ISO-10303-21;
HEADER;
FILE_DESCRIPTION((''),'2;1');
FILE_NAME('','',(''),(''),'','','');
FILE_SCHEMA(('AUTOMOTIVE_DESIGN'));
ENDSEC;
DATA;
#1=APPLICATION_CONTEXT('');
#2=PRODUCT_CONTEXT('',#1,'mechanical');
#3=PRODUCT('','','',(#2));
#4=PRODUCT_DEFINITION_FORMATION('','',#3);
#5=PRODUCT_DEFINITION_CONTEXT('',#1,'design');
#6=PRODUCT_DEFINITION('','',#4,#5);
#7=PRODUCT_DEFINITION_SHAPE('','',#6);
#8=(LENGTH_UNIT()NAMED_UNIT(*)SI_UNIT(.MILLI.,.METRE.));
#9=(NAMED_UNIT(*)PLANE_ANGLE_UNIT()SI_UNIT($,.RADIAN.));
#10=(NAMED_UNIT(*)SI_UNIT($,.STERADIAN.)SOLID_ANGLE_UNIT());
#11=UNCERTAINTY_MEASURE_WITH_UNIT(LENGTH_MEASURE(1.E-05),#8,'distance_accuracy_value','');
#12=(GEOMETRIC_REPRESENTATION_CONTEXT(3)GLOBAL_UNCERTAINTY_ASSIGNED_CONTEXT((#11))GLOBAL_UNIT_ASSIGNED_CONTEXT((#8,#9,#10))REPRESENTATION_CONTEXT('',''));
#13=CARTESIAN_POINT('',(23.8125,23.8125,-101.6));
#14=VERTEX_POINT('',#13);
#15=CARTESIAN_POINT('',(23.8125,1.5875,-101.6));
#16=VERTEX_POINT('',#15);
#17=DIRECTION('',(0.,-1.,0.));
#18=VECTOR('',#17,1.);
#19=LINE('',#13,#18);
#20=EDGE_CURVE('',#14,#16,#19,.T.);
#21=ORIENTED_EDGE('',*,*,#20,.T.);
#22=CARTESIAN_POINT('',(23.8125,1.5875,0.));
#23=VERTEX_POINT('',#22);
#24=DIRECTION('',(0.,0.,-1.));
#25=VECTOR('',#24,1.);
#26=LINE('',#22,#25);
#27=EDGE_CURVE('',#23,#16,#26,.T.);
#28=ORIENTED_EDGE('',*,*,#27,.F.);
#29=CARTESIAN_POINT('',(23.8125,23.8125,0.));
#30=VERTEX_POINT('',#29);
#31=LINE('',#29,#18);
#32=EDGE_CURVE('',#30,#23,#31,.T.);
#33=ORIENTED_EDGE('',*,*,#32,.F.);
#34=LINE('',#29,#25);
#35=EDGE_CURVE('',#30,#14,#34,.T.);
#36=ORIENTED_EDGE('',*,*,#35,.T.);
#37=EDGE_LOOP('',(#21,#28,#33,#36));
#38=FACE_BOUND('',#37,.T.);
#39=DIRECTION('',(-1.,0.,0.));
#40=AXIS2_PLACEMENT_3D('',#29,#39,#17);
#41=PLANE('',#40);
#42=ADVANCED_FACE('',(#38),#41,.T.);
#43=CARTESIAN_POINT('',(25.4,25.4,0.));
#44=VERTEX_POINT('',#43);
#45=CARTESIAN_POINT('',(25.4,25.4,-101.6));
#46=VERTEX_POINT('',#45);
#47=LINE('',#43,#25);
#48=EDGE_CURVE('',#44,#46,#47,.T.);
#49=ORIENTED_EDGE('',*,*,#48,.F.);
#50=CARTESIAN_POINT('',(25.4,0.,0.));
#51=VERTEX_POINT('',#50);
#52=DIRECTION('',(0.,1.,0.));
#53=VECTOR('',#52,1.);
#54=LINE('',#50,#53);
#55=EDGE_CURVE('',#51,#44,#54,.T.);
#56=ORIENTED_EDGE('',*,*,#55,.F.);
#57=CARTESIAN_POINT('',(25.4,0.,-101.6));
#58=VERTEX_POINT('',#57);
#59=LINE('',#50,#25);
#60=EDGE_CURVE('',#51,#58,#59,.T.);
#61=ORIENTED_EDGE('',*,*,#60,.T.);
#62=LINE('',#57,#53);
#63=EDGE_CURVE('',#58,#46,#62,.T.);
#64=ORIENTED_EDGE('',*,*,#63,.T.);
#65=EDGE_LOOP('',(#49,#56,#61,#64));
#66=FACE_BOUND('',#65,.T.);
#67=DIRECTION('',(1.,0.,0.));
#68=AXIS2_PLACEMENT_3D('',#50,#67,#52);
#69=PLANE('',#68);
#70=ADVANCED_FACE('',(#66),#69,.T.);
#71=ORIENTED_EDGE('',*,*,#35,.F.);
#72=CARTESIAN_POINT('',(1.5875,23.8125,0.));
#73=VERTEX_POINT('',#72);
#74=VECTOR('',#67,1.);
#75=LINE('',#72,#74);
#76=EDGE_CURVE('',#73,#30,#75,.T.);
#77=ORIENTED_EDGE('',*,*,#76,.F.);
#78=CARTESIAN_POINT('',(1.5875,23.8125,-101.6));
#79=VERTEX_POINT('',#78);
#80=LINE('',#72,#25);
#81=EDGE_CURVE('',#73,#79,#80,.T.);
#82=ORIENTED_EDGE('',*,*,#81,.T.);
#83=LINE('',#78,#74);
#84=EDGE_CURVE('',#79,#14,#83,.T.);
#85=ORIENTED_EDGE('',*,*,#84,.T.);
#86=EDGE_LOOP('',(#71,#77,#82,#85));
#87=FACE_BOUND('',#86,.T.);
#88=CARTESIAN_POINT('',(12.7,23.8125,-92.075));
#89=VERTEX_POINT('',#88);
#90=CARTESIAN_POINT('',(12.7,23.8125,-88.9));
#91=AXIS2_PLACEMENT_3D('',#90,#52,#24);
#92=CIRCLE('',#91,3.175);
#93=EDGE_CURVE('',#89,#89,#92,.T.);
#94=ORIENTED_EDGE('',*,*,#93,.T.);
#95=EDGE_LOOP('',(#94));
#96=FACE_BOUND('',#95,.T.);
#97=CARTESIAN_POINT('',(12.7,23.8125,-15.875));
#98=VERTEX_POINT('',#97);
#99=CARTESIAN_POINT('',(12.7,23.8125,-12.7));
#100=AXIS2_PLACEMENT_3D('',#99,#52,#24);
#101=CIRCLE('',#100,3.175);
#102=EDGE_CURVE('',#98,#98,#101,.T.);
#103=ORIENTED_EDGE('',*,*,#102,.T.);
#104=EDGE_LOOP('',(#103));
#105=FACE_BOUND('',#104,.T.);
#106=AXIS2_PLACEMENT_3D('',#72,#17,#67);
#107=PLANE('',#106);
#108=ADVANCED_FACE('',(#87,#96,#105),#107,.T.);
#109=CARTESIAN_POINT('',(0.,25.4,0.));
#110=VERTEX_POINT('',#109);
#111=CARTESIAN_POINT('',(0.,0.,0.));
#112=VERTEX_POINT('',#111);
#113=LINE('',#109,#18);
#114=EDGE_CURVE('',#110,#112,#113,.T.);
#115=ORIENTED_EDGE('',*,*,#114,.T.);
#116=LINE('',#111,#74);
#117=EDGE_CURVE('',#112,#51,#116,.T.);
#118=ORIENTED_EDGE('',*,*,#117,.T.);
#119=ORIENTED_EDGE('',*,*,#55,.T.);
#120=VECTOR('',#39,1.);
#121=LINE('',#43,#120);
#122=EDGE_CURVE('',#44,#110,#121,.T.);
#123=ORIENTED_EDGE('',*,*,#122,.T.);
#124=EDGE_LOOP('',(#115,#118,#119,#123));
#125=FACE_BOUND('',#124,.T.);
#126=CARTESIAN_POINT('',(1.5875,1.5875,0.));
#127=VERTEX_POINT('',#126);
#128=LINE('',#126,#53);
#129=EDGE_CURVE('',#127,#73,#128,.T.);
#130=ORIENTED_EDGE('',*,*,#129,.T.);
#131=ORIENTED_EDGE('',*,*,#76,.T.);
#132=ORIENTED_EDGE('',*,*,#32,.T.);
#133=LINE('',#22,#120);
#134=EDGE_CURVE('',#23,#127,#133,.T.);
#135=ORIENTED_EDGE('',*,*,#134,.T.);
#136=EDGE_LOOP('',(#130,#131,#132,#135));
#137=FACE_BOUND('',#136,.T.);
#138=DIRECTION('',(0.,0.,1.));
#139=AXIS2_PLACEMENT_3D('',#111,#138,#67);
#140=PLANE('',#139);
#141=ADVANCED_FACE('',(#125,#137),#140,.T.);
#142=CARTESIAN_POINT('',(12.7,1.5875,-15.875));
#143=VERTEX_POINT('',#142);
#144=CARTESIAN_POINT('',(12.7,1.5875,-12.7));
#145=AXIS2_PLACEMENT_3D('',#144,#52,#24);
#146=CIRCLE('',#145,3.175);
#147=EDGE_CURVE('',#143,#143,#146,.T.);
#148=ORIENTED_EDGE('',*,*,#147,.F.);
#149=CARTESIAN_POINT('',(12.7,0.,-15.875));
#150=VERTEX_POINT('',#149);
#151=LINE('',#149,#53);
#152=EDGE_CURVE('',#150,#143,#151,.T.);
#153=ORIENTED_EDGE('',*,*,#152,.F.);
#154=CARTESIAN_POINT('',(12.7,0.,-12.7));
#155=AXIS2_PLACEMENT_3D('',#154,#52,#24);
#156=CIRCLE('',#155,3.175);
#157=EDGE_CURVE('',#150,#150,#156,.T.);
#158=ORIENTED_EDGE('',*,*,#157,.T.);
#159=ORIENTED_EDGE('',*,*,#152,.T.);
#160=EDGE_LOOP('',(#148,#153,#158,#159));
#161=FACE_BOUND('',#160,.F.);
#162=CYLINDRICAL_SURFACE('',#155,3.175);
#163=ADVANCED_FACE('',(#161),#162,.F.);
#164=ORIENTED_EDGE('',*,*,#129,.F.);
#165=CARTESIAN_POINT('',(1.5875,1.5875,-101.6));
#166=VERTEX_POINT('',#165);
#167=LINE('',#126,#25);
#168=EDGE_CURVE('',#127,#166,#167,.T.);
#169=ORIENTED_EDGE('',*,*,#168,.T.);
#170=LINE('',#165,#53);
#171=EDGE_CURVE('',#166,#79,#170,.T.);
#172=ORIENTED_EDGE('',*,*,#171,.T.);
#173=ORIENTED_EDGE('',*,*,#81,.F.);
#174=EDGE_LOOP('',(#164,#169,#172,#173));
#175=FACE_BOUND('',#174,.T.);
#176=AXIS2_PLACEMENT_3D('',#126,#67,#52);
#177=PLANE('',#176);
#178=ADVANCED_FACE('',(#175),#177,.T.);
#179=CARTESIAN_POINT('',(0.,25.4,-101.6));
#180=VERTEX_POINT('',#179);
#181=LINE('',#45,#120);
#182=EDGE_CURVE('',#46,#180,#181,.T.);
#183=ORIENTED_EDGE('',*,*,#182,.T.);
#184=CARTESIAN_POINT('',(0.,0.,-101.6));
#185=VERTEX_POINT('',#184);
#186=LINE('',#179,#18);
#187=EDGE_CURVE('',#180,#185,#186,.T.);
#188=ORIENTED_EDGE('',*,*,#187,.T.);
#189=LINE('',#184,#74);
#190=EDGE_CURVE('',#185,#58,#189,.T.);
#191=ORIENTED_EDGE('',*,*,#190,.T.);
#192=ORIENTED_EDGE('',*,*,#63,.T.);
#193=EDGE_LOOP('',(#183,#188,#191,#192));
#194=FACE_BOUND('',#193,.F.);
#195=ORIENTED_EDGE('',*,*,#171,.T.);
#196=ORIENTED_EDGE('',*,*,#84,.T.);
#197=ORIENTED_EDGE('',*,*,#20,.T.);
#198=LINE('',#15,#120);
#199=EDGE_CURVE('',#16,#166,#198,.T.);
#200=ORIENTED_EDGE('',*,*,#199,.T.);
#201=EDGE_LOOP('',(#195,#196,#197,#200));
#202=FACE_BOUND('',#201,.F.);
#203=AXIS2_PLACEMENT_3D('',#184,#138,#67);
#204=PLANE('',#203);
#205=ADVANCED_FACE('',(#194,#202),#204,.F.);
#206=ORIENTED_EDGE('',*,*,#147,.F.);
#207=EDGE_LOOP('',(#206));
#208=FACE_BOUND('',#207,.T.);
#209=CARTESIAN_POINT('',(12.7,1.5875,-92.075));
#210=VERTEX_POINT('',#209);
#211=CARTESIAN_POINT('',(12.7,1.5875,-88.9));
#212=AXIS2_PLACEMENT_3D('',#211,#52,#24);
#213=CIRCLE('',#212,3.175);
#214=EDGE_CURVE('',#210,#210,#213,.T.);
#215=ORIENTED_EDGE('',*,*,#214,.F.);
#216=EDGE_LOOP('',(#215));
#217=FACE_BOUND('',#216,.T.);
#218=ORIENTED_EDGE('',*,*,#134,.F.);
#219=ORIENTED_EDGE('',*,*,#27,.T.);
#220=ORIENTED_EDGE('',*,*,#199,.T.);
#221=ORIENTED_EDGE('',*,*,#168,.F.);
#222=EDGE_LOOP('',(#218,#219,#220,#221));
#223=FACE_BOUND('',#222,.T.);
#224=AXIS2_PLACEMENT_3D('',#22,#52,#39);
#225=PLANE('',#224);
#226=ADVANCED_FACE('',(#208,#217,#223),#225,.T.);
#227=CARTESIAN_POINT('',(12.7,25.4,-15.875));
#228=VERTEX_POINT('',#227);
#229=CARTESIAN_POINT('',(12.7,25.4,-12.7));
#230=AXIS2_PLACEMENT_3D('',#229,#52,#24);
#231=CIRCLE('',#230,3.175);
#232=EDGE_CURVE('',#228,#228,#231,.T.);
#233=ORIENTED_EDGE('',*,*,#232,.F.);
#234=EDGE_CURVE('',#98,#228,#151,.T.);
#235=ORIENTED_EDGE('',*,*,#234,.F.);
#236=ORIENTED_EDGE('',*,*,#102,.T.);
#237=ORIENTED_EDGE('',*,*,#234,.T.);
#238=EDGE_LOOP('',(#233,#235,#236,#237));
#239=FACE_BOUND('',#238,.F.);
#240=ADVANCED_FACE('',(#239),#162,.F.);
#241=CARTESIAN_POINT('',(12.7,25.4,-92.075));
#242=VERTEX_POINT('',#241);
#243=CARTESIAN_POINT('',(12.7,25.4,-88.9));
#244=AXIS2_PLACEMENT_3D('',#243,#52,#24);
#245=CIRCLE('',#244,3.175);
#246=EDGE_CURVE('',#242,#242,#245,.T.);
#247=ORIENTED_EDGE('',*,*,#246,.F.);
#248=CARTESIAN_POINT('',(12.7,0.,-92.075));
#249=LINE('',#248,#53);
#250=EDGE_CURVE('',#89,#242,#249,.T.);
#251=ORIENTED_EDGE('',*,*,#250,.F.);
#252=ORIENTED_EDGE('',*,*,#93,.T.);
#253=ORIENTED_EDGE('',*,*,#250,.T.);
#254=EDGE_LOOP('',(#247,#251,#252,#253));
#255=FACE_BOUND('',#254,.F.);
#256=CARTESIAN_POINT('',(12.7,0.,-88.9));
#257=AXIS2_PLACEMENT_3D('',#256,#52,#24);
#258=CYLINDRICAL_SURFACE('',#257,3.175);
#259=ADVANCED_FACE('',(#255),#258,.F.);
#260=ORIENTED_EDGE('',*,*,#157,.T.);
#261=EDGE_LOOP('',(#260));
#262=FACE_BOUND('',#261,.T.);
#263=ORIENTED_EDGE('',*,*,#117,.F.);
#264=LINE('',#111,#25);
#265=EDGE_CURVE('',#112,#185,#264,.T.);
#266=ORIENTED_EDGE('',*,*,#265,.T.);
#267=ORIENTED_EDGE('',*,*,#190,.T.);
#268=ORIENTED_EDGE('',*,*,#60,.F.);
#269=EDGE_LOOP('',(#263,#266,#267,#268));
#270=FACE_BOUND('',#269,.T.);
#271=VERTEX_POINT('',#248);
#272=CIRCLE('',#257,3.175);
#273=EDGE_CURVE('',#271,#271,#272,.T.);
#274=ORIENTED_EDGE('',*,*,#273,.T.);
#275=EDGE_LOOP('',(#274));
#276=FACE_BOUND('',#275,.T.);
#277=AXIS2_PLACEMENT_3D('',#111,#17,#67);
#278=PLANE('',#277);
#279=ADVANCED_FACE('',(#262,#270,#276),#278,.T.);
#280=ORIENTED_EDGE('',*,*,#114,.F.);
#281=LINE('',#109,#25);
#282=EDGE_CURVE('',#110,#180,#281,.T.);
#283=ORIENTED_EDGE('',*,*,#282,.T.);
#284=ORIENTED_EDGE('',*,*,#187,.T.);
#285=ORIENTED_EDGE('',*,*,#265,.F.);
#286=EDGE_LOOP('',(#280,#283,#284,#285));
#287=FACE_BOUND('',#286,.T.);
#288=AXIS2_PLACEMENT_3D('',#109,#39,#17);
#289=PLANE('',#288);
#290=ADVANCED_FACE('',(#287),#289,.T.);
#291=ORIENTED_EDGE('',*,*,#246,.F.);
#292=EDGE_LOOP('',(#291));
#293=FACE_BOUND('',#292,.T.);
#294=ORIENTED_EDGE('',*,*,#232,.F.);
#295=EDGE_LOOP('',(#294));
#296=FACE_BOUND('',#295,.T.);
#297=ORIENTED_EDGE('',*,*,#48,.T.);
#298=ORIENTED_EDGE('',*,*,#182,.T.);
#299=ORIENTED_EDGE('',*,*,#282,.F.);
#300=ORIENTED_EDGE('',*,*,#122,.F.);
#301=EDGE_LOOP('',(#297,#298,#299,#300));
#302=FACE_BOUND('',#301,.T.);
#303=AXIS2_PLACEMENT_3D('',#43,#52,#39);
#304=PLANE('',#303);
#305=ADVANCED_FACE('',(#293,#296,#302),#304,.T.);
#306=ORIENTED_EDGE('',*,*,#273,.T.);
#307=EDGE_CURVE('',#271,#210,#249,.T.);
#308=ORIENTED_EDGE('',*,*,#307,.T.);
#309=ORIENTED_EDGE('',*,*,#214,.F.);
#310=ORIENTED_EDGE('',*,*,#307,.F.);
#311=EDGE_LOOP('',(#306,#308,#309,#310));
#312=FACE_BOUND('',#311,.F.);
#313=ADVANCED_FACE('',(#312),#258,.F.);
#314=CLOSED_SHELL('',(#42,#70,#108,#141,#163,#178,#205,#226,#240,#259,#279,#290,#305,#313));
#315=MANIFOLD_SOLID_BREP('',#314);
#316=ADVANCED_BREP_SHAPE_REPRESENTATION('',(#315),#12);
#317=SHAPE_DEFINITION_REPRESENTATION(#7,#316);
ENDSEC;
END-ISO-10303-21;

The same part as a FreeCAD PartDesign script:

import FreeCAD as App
import Part
import Sketcher
Q = App.Units.Quantity

doc = App.newDocument("Part")
params = doc.addObject("Spreadsheet::Sheet", "Params")
for row, (alias, value) in enumerate([
    ("sketch1_width", "1 in"),
    ("pad1_length", "4 in"),
    ("sketch2_diameter", "0.25 in"),
    ("hole_diameter", "0.25 in"),
    ("hole_depth", "1 in"),
], start=1):
    params.set(f"A{row}", alias)
    params.set(f"B{row}", "=" + value)
    params.setAlias(f"B{row}", alias)

body = doc.addObject("PartDesign::Body", "Body")

sketch1 = body.newObject("Sketcher::SketchObject", "Sketch")
sketch1.AttachmentSupport = (doc.getObject("XY_Plane"), [""])
sketch1.MapMode = "FlatFace"
sketch1.addGeometry([
    Part.LineSegment(App.Vector(0, 25, 0), App.Vector(0, 0, 0)),
    Part.LineSegment(App.Vector(0, 0, 0), App.Vector(25, 0, 0)),
    Part.LineSegment(App.Vector(25, 0, 0), App.Vector(25, 25, 0)),
    Part.LineSegment(App.Vector(25, 25, 0), App.Vector(0, 25, 0)),
    Part.LineSegment(App.Vector(2, 2, 0), App.Vector(2, 24, 0)),
    Part.LineSegment(App.Vector(2, 24, 0), App.Vector(24, 24, 0)),
    Part.LineSegment(App.Vector(24, 24, 0), App.Vector(24, 2, 0)),
    Part.LineSegment(App.Vector(24, 2, 0), App.Vector(2, 2, 0)),
], False)
sketch1.addConstraint([
    Sketcher.Constraint("Coincident", 0, 2, 1, 1),
    Sketcher.Constraint("Coincident", 1, 2, 2, 1),
    Sketcher.Constraint("Coincident", 2, 2, 3, 1),
    Sketcher.Constraint("Coincident", 3, 2, 0, 1),
    Sketcher.Constraint("Coincident", 4, 2, 5, 1),
    Sketcher.Constraint("Coincident", 5, 2, 6, 1),
    Sketcher.Constraint("Coincident", 6, 2, 7, 1),
    Sketcher.Constraint("Coincident", 7, 2, 4, 1),
    Sketcher.Constraint("Vertical", 0),
    Sketcher.Constraint("Horizontal", 1),
    Sketcher.Constraint("Vertical", 2),
    Sketcher.Constraint("Horizontal", 3),
    Sketcher.Constraint("Vertical", 4),
    Sketcher.Constraint("Horizontal", 5),
    Sketcher.Constraint("Vertical", 6),
    Sketcher.Constraint("Horizontal", 7),
    Sketcher.Constraint("Coincident", 0, 2, -1, 1),
    Sketcher.Constraint("Equal", 3, 0),
    Sketcher.Constraint("Equal", 7, 4),
    Sketcher.Constraint("DistanceX", 1, 1, 1, 2, Q("1 in")),
    Sketcher.Constraint("DistanceX", -1, 1, 4, 2, Q("0.0625 in")),
    Sketcher.Constraint("DistanceY", -1, 1, 6, 2, Q("0.0625 in")),
    Sketcher.Constraint("DistanceY", 4, 2, 3, 2, Q("0.0625 in")),
])
sketch1.setExpression("Constraints[19]", "Params.sketch1_width")
pad1 = body.newObject("PartDesign::Pad", "Pad")
pad1.Profile = sketch1
pad1.setExpression("Length", "Params.pad1_length")
pad1.Reversed = True

sketch2 = body.newObject("Sketcher::SketchObject", "Sketch001")
sketch2.AttachmentSupport = (doc.getObject("XZ_Plane"), [""])
sketch2.MapMode = "FlatFace"
sketch2.addGeometry([
    Part.Circle(App.Vector(12.7, -12.7, 0), App.Vector(0, 0, 1), 3.2),
    Part.Circle(App.Vector(12.7, -88.9, 0), App.Vector(0, 0, 1), 3.2),
], False)
sketch2.addConstraint([
    Sketcher.Constraint("Equal", 0, 1),
    Sketcher.Constraint("Vertical", 0, 3, 1, 3),
    Sketcher.Constraint("Diameter", 0, Q("0.25 in")),
    Sketcher.Constraint("DistanceY", 1, 3, 0, 3, Q("3 in")),
    Sketcher.Constraint("DistanceX", -1, 1, 0, 3, Q("0.5 in")),
    Sketcher.Constraint("DistanceY", 0, 3, -1, 1, Q("0.5 in")),
])
sketch2.setExpression("Constraints[2]", "Params.sketch2_diameter")
doc.recompute()
hole = body.newObject("PartDesign::Hole", "Hole")
hole.Profile = sketch2
hole.ThreadType = "None"
hole.setExpression("Diameter", "Params.hole_diameter")
hole.DepthType = "Dimension"
hole.setExpression("Depth", "Params.hole_depth")
hole.DrillPoint = "Angled"
hole.DrillPointAngle = 118

doc.recompute()
